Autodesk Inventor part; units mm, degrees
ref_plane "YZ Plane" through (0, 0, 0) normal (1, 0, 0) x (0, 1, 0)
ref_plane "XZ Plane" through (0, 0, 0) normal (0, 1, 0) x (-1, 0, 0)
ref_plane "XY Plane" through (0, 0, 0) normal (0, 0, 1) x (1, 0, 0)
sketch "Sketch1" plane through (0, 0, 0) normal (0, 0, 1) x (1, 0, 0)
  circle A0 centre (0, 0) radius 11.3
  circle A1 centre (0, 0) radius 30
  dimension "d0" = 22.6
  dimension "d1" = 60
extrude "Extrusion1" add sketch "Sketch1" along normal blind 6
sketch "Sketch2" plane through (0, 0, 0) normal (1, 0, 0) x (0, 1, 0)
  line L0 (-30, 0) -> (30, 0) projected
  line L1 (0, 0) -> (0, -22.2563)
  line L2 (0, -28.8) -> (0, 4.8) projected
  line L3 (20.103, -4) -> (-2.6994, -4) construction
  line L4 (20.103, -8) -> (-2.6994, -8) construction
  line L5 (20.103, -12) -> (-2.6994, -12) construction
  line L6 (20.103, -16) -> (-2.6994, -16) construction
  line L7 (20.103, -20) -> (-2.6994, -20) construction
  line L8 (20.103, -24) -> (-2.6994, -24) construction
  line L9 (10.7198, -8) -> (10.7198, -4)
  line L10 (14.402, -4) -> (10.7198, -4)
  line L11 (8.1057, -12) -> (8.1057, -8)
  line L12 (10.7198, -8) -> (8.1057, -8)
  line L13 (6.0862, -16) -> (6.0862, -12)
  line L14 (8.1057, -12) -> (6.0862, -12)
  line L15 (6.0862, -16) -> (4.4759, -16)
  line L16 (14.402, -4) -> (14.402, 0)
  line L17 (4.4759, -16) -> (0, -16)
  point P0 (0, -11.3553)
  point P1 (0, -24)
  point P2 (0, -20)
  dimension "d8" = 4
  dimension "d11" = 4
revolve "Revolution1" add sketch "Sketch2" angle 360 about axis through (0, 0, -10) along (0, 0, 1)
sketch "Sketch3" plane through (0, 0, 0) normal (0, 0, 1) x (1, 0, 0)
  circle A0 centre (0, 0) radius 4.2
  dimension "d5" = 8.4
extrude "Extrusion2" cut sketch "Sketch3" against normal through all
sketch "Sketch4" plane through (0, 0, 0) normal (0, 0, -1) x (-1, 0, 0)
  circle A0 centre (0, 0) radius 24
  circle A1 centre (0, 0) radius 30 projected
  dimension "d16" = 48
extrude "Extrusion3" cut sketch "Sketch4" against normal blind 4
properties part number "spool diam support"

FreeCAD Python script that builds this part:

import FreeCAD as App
import Part
import Sketcher

V = App.Vector
Q = App.Units.Quantity


def add_polygon(sketch, points):
    """Adds a closed chain of lines whose ends are joined by coincident constraints."""
    first, n = sketch.GeometryCount, len(points)
    for a, b in zip(points, points[1:] + points[:1]):
        sketch.addGeometry(Part.LineSegment(App.Vector(*a, 0), App.Vector(*b, 0)), False)
    for i in range(n):
        sketch.addConstraint(Sketcher.Constraint("Coincident", first + i, 2, first + (i + 1) % n, 1))

doc = App.newDocument("Part")
body = doc.addObject("PartDesign::Body", "Body")

sketch1 = doc.addObject("Sketcher::SketchObject", "Sketch")
body.addObject(sketch1)
sketch1.AttachmentSupport = (doc.XY_Plane, [""])
sketch1.MapMode = "FlatFace"
sketch1.addGeometry([
    Part.Circle(V(0, 0, 0), V(0, 0, 1), 30),
    Part.Circle(V(0, 0, 0), V(0, 0, 1), 11.3),
], False)
sketch1.addConstraint([
    Sketcher.Constraint("Coincident", 0, 3, -1, 1),
    Sketcher.Constraint("Coincident", 1, 3, -1, 1),
    Sketcher.Constraint("Diameter", 0, Q("60 mm")),
    Sketcher.Constraint("Diameter", 1, Q("22.6 mm")),
])
pad1 = doc.addObject("PartDesign::Pad", "Pad")
body.addObject(pad1)
pad1.Profile = sketch1
pad1.Length = 6

sketch2 = doc.addObject("Sketcher::SketchObject", "Sketch001")
body.addObject(sketch2)
sketch2.AttachmentSupport = (doc.YZ_Plane, [""])
sketch2.MapMode = "FlatFace"
add_polygon(sketch2, [(14.402, 0), (0, 0), (0, -16), (6.0862, -16), (6.0862, -12), (8.1057, -12), (8.1057, -8), (10.7198, -8), (10.7198, -4), (14.402, -4)])
sketch2.addConstraint([
    Sketcher.Constraint("Horizontal", 0),
    Sketcher.Constraint("Vertical", 1),
    Sketcher.Constraint("Horizontal", 2),
    Sketcher.Constraint("Vertical", 3),
    Sketcher.Constraint("Horizontal", 4),
    Sketcher.Constraint("Vertical", 5),
    Sketcher.Constraint("Horizontal", 6),
    Sketcher.Constraint("Vertical", 7),
    Sketcher.Constraint("Horizontal", 8),
    Sketcher.Constraint("Vertical", 9),
    Sketcher.Constraint("Coincident", 0, 2, -1, 1),
    Sketcher.Constraint("Equal", 3, 5),
    Sketcher.Constraint("Equal", 5, 7),
    Sketcher.Constraint("Equal", 7, 9),
    Sketcher.Constraint("DistanceY", 3, 1, 3, 2, Q("4 mm")),
    Sketcher.Constraint("DistanceX", 0, 2, 0, 1, Q("14.402 mm")),
    Sketcher.Constraint("DistanceX", 6, 1, 6, 2, Q("2.614 mm")),
    Sketcher.Constraint("DistanceX", 2, 1, 2, 2, Q("6.0862 mm")),
    Sketcher.Constraint("DistanceX", 4, 1, 4, 2, Q("2.0195 mm")),
])
revolution = doc.addObject("PartDesign::Revolution", "Revolution")
body.addObject(revolution)
revolution.Profile = sketch2
revolution.ReferenceAxis = (sketch2, ["V_Axis"])
revolution.Angle = 360

sketch3 = doc.addObject("Sketcher::SketchObject", "Sketch002")
body.addObject(sketch3)
sketch3.AttachmentSupport = (doc.XY_Plane, [""])
sketch3.MapMode = "FlatFace"
sketch3.addGeometry(Part.Circle(V(0, 0, 0), V(0, 0, 1), 4.2), False)
sketch3.addConstraint([
    Sketcher.Constraint("Coincident", 0, 3, -1, 1),
    Sketcher.Constraint("Diameter", 0, Q("8.4 mm")),
])
pocket1 = doc.addObject("PartDesign::Pocket", "Pocket")
body.addObject(pocket1)
pocket1.Profile = sketch3
pocket1.Type = "ThroughAll"

sketch4 = doc.addObject("Sketcher::SketchObject", "Sketch003")
body.addObject(sketch4)
sketch4.AttachmentSupport = (doc.XY_Plane, [""])
sketch4.MapMode = "FlatFace"
sketch4.addGeometry([
    Part.Circle(V(0, 0, 0), V(0, 0, 1), 30),
    Part.Circle(V(0, 0, 0), V(0, 0, 1), 24),
], False)
sketch4.addConstraint([
    Sketcher.Constraint("Coincident", 0, 3, -1, 1),
    Sketcher.Constraint("Coincident", 1, 3, -1, 1),
    Sketcher.Constraint("Diameter", 1, Q("48 mm")),
    Sketcher.Constraint("Diameter", 0, Q("60 mm")),
])
pocket2 = doc.addObject("PartDesign::Pocket", "Pocket001")
body.addObject(pocket2)
pocket2.Profile = sketch4
pocket2.Length = 4
pocket2.Reversed = True

doc.recompute()
